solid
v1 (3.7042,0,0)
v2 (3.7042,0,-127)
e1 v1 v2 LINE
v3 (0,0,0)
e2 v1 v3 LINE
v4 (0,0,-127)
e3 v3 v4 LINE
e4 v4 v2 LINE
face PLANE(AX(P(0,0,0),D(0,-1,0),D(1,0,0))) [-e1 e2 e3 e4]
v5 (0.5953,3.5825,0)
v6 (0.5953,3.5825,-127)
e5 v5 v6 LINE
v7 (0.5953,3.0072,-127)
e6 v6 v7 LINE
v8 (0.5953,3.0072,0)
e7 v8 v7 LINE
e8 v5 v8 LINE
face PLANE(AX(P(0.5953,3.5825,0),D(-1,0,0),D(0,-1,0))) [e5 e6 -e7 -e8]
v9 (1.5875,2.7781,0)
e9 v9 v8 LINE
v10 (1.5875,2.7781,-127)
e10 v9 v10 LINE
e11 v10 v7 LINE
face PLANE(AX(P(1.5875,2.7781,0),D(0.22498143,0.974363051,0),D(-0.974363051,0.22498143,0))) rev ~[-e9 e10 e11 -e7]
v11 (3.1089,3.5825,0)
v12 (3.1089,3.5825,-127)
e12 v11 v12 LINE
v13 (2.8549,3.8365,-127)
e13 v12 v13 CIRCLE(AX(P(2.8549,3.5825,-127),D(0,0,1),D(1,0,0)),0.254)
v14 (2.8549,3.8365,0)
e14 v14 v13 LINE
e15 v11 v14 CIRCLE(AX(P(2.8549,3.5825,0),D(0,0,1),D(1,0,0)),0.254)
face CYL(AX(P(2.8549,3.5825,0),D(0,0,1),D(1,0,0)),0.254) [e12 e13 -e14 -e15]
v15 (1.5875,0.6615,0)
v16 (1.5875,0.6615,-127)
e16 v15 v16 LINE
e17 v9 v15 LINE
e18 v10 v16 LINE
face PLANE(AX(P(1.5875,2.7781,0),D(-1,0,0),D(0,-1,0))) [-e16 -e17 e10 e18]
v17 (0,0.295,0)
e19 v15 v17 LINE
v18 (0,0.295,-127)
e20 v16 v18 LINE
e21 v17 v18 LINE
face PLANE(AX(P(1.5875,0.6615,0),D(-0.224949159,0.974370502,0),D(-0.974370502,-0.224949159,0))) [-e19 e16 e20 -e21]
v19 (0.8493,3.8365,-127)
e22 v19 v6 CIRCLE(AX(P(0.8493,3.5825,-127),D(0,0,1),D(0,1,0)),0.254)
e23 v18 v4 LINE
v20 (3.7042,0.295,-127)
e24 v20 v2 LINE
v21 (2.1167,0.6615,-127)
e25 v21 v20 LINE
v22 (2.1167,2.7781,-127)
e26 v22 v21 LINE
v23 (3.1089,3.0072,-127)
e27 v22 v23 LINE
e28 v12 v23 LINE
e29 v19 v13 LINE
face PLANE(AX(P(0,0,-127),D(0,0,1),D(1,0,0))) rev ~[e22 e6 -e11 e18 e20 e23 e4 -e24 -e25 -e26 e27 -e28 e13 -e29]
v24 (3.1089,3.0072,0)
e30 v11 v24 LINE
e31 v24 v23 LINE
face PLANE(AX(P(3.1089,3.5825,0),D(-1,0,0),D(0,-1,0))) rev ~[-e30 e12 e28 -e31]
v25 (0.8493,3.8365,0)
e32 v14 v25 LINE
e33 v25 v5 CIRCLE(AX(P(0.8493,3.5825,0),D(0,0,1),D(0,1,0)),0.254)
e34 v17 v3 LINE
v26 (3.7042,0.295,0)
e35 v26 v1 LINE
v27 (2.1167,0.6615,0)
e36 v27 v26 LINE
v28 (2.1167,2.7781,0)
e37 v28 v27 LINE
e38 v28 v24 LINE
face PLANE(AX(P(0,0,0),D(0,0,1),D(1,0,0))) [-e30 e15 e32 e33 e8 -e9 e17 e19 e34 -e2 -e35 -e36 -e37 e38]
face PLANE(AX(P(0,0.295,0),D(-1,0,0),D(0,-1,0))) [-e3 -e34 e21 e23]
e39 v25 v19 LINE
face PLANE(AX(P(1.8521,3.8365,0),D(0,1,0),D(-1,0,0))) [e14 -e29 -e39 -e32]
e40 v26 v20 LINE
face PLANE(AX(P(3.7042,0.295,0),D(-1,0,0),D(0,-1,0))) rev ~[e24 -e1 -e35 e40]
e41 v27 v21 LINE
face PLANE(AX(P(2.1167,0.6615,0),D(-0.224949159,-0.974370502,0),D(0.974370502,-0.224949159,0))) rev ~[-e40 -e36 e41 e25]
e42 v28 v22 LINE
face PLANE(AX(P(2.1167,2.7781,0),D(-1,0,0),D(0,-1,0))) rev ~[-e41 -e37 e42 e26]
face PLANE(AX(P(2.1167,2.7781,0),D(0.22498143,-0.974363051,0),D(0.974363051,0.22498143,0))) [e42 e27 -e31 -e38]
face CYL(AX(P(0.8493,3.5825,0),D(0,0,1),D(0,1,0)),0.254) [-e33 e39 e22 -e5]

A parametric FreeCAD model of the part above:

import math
import FreeCAD as App
import Part
import Sketcher

V = App.Vector
Q = App.Units.Quantity

doc = App.newDocument("Part")
body = doc.addObject("PartDesign::Body", "Body")

# Sketch on XY plane
sketch1 = body.newObject("Sketcher::SketchObject", "Sketch")
sketch1.AttachmentSupport = (doc.getObject("XY_Plane"), [""])
sketch1.MapMode = "FlatFace"
sketch1.addGeometry([
    Part.LineSegment(V(0, 0.29, 0), V(0, 0, 0)),  # 0
    Part.LineSegment(V(0, 0, 0), V(3.7, 0, 0)),  # 1
    Part.LineSegment(V(3.7, 0, 0), V(3.7, 0.29, 0)),  # 2
    Part.LineSegment(V(3.7, 0.29, 0), V(2.12, 0.66, 0)),  # 3
    Part.LineSegment(V(2.12, 0.66, 0), V(2.12, 2.78, 0)),  # 4
    Part.LineSegment(V(2.12, 2.78, 0), V(3.11, 3.01, 0)),  # 5
    Part.LineSegment(V(3.11, 3.01, 0), V(3.11, 3.58, 0)),  # 6
    Part.ArcOfCircle(Part.Circle(V(2.85, 3.58, 0), V(0, 0, 1), 0.25), math.radians(0), math.radians(90)),  # 7
    Part.LineSegment(V(2.85, 3.84, 0), V(0.85, 3.84, 0)),  # 8
    Part.ArcOfCircle(Part.Circle(V(0.85, 3.58, 0), V(0, 0, 1), 0.25), math.radians(90), math.radians(180)),  # 9
    Part.LineSegment(V(0.6, 3.58, 0), V(0.6, 3.01, 0)),  # 10
    Part.LineSegment(V(0.6, 3.01, 0), V(1.59, 2.78, 0)),  # 11
    Part.LineSegment(V(1.59, 2.78, 0), V(1.59, 0.66, 0)),  # 12
    Part.LineSegment(V(1.59, 0.66, 0), V(0, 0.29, 0)),  # 13
], False)
sketch1.addConstraint([
    Sketcher.Constraint("Coincident", 0, 2, 1, 1),
    Sketcher.Constraint("Coincident", 1, 2, 2, 1),
    Sketcher.Constraint("Coincident", 2, 2, 3, 1),
    Sketcher.Constraint("Coincident", 3, 2, 4, 1),
    Sketcher.Constraint("Coincident", 4, 2, 5, 1),
    Sketcher.Constraint("Coincident", 5, 2, 6, 1),
    Sketcher.Constraint("Tangent", 6, 2, 7, 1),
    Sketcher.Constraint("Tangent", 7, 2, 8, 1),
    Sketcher.Constraint("Tangent", 8, 2, 9, 1),
    Sketcher.Constraint("Tangent", 9, 2, 10, 1),
    Sketcher.Constraint("Coincident", 10, 2, 11, 1),
    Sketcher.Constraint("Coincident", 11, 2, 12, 1),
    Sketcher.Constraint("Coincident", 12, 2, 13, 1),
    Sketcher.Constraint("Coincident", 13, 2, 0, 1),
    Sketcher.Constraint("Vertical", 0),
    Sketcher.Constraint("Horizontal", 1),
    Sketcher.Constraint("Vertical", 2),
    Sketcher.Constraint("Vertical", 4),
    Sketcher.Constraint("Vertical", 6),
    Sketcher.Constraint("Horizontal", 8),
    Sketcher.Constraint("Vertical", 10),
    Sketcher.Constraint("Vertical", 12),
    Sketcher.Constraint("Coincident", 0, 2, -1, 1),
    Sketcher.Constraint("Equal", 7, 9),
    Sketcher.Constraint("Parallel", 3, 11),
    Sketcher.Constraint("Parallel", 5, 13),
    Sketcher.Constraint("Horizontal", 5, 2, 10, 2),
    Sketcher.Constraint("Horizontal", 4, 2, 11, 2),
    Sketcher.Constraint("Horizontal", 3, 2, 12, 2),
    Sketcher.Constraint("Horizontal", 2, 2, 13, 2),
    Sketcher.Constraint("Equal", 5, 11),
    Sketcher.Constraint("Radius", 7, Q("0.01 in")),
    Sketcher.Constraint("Angle", 3, Q("167 deg")),
    Sketcher.Constraint("DistanceY", 4, 1, 4, 2, Q("2.1166 mm")),
    Sketcher.Constraint("DistanceX", -1, 1, 3, 2, Q("2.1167 mm")),
    Sketcher.Constraint("DistanceY", -1, 1, 3, 2, Q("0.6615 mm")),
    Sketcher.Constraint("DistanceY", 4, 2, 7, 2, Q("1.0584 mm")),
    Sketcher.Constraint("DistanceX", -1, 1, 11, 2, Q("0.0625 in")),
    Sketcher.Constraint("Distance", 5, Q("0.0401 in")),
])
pad1 = body.newObject("PartDesign::Pad", "Pad")
pad1.Profile = sketch1
pad1.Length = Q("5 in")
pad1.Reversed = True

doc.recompute()
